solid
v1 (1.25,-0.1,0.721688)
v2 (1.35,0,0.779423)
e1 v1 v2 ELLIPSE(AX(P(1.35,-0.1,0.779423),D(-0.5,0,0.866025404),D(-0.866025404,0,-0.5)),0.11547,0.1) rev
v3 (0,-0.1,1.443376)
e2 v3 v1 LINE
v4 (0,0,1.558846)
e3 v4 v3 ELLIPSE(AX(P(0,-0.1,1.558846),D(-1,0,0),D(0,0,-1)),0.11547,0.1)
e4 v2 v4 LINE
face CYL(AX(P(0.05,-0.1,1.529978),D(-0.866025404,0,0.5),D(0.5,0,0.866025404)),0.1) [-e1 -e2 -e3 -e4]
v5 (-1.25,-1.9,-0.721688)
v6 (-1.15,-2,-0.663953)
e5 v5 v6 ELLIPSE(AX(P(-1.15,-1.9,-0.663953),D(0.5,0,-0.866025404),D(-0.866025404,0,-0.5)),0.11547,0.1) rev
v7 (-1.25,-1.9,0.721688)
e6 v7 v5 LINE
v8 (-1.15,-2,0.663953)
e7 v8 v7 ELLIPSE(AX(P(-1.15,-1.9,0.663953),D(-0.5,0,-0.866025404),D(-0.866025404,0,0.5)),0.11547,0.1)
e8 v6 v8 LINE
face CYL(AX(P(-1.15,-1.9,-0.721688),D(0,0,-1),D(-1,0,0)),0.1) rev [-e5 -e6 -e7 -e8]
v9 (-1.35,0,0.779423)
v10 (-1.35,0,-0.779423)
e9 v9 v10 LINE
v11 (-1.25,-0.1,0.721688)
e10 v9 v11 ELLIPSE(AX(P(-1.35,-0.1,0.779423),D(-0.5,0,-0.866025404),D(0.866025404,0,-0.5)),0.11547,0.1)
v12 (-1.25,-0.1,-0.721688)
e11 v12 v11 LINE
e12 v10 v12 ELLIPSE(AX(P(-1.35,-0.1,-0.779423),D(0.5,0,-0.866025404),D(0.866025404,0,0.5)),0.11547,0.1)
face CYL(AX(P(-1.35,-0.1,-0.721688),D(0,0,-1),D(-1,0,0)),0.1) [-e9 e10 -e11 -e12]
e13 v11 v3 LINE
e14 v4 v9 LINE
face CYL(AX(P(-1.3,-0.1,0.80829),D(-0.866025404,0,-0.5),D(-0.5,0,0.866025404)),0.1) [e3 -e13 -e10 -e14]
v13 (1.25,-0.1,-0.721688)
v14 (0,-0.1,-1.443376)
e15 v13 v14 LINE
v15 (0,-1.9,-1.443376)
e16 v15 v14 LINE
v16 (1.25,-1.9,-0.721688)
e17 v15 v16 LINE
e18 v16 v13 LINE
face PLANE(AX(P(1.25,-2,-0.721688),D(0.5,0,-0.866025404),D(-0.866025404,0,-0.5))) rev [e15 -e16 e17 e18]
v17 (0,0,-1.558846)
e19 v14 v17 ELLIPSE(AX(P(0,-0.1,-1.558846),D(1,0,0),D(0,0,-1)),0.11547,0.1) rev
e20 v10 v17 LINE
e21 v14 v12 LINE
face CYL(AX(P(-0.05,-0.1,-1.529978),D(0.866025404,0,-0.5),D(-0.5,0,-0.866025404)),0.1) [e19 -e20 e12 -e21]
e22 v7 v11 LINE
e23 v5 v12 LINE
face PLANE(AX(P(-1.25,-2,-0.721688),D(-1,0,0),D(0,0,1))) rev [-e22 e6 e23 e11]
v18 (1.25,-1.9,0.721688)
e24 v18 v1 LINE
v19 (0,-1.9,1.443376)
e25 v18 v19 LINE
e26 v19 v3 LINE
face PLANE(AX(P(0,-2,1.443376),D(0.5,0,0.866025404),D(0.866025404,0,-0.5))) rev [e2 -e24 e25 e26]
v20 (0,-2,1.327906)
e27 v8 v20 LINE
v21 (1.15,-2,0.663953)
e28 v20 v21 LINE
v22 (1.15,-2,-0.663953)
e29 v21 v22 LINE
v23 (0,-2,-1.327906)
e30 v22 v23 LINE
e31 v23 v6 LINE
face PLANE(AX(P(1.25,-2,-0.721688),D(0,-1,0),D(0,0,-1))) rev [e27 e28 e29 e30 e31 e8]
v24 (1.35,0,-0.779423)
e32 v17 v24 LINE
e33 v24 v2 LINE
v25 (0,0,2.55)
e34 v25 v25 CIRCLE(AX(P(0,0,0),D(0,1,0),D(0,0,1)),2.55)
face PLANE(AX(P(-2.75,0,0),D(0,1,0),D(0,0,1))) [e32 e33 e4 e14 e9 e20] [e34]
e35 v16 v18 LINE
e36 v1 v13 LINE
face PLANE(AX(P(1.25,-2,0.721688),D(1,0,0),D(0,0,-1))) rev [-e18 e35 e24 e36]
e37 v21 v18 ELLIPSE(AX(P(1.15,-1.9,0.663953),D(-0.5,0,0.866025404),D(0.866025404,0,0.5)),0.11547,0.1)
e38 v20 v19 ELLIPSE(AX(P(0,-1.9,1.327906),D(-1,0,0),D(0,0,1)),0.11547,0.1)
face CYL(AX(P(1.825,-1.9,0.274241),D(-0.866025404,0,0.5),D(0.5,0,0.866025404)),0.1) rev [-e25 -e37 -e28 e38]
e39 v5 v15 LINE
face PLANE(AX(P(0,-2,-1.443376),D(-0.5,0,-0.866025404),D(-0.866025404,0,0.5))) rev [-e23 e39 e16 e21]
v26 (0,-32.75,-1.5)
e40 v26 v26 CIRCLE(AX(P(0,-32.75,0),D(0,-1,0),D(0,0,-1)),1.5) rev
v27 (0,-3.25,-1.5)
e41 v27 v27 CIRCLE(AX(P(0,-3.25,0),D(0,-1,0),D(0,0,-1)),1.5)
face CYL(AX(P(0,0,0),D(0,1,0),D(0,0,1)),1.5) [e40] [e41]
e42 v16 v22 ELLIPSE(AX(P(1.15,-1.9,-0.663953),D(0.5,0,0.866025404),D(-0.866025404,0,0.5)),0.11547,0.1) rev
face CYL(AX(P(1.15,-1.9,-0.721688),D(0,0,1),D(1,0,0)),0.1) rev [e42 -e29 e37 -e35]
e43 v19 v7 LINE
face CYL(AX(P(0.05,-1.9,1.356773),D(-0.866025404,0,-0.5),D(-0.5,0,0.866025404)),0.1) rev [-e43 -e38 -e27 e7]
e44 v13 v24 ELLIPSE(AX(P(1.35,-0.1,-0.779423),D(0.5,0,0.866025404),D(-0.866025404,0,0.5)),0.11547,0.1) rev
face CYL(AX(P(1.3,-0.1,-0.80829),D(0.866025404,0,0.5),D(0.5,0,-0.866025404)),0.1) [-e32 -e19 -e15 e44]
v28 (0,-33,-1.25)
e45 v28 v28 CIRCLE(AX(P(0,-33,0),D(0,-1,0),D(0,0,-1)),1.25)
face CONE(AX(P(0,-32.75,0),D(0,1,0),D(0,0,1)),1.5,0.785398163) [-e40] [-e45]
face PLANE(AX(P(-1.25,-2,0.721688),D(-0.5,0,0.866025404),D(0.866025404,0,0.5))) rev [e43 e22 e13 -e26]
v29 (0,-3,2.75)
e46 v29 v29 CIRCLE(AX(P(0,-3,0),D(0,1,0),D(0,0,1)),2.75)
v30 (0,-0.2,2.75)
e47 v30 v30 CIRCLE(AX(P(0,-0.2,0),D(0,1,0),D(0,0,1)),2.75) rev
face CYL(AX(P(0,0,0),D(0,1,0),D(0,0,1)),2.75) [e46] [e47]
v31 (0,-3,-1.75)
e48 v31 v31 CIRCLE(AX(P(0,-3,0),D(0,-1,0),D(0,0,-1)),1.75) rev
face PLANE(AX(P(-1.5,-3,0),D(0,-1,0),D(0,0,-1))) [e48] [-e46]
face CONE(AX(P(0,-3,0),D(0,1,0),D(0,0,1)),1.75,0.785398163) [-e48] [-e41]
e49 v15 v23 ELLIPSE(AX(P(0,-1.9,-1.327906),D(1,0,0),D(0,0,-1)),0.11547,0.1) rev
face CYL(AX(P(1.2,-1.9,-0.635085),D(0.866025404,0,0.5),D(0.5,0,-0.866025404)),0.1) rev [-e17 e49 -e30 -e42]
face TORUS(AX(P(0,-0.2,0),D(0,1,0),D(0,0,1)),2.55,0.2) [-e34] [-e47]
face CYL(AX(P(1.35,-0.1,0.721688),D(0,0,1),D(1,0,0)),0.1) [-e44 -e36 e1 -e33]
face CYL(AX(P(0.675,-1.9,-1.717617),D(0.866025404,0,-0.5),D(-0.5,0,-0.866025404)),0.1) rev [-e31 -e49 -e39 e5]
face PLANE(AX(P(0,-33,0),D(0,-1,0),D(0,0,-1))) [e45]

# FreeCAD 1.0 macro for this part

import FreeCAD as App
import Part
import Sketcher
Q = App.Units.Quantity


def edges_at(feature, points):
    """Names of the edges that pass closest to the given points."""
    edges = feature.Shape.Edges
    near = lambda p: min(range(len(edges)), key=lambda i: edges[i].distToShape(Part.Vertex(*p))[0])
    return sorted({f"Edge{near(p) + 1}" for p in points})


def add_polygon(sketch, points):
    """Adds a closed chain of lines whose ends are joined by coincident constraints."""
    first, n = sketch.GeometryCount, len(points)
    for a, b in zip(points, points[1:] + points[:1]):
        sketch.addGeometry(Part.LineSegment(App.Vector(*a, 0), App.Vector(*b, 0)), False)
    for i in range(n):
        sketch.addConstraint(Sketcher.Constraint("Coincident", first + i, 2, first + (i + 1) % n, 1))

doc = App.newDocument("Part")
body = doc.addObject("PartDesign::Body", "Body")

sketch1 = body.newObject("Sketcher::SketchObject", "Sketch")
sketch1.AttachmentSupport = (doc.getObject("XY_Plane"), [""])
sketch1.MapMode = "FlatFace"
add_polygon(sketch1, [(-1.5, -33), (0, -33), (0, 0), (-2.75, 0), (-2.75, -3), (-1.5, -3)])
sketch1.addConstraint(Sketcher.Constraint("Horizontal", 0))
sketch1.addConstraint(Sketcher.Constraint("Vertical", 1))
sketch1.addConstraint(Sketcher.Constraint("Horizontal", 2))
sketch1.addConstraint(Sketcher.Constraint("Vertical", 3))
sketch1.addConstraint(Sketcher.Constraint("Horizontal", 4))
sketch1.addConstraint(Sketcher.Constraint("Vertical", 5))
sketch1.addConstraint(Sketcher.Constraint("Coincident", 1, 2, -1, 1))
sketch1.addConstraint(Sketcher.Constraint("DistanceY", 1, 1, 1, 2, 33.0))
sketch1.addConstraint(Sketcher.Constraint("DistanceY", 3, 2, 3, 1, 3.0))
sketch1.addConstraint(Sketcher.Constraint("DistanceX", 0, 1, 0, 2, 1.5))
sketch1.addConstraint(Sketcher.Constraint("DistanceX", 2, 2, 2, 1, 2.75))
revolution = body.newObject("PartDesign::Revolution", "Revolution")
revolution.Profile = sketch1
revolution.ReferenceAxis = (sketch1, ["V_Axis"])
revolution.Angle = 360
doc.recompute()

chamfer = body.newObject("PartDesign::Chamfer", "Chamfer")
chamfer.Base = (revolution, edges_at(revolution, [(1.5, -3, 0), (1.5, -33, 0)]))
chamfer.Size = 0.25
doc.recompute()

fillet = body.newObject("PartDesign::Fillet", "Fillet")
fillet.Base = (chamfer, edges_at(chamfer, [(2.75, 0, 0)]))
fillet.Radius = 0.2

sketch2 = body.newObject("Sketcher::SketchObject", "Sketch001")
sketch2.AttachmentSupport = (doc.getObject("XZ_Plane"), [""])
sketch2.MapMode = "FlatFace"
add_polygon(sketch2, [(0, -1.443376), (-1.25, -0.721688), (-1.25, 0.721688), (0, 1.443376), (1.25, 0.721688), (1.25, -0.721688)])
sketch2.addConstraint(Sketcher.Constraint("Vertical", 1))
sketch2.addConstraint(Sketcher.Constraint("Vertical", 4))
sketch2.addConstraint(Sketcher.Constraint("Symmetric", 0, 2, 3, 2, -1, 1))
sketch2.addConstraint(Sketcher.Constraint("Symmetric", 2, 2, 5, 2, -1, 1))
sketch2.addConstraint(Sketcher.Constraint("PointOnObject", 2, 2, -2))
sketch2.addConstraint(Sketcher.Constraint("Parallel", 2, 5))
sketch2.addConstraint(Sketcher.Constraint("Horizontal", 1, 2, 3, 2))
sketch2.addConstraint(Sketcher.Constraint("Angle", 0, Q("150 deg")))
sketch2.addConstraint(Sketcher.Constraint("DistanceX", 1, 2, 3, 2, 2.5))
sketch2.addConstraint(Sketcher.Constraint("DistanceY", 1, 1, 1, 2, 1.443376))
pocket1 = body.newObject("PartDesign::Pocket", "Pocket")
pocket1.Profile = sketch2
pocket1.Length = 2
pocket1.Reversed = True
doc.recompute()

fillet2 = body.newObject("PartDesign::Fillet", "Fillet001")
fillet2.Base = (pocket1, edges_at(pocket1, [
    (0.625, -2, -1.083),
    (1.25, -2, 0),
    (0.625, -2, 1.083),
    (-0.625, -2, 1.083),
    (-1.25, -2, 0),
    (-0.625, -2, -1.083),
    (0.625, 0, -1.083),
    (-0.625, 0, -1.083),
    (-1.25, 0, 0),
    (-0.625, 0, 1.083),
    (0.625, 0, 1.083),
    (1.25, 0, 0),
]))
fillet2.Radius = 0.1

doc.recompute()
